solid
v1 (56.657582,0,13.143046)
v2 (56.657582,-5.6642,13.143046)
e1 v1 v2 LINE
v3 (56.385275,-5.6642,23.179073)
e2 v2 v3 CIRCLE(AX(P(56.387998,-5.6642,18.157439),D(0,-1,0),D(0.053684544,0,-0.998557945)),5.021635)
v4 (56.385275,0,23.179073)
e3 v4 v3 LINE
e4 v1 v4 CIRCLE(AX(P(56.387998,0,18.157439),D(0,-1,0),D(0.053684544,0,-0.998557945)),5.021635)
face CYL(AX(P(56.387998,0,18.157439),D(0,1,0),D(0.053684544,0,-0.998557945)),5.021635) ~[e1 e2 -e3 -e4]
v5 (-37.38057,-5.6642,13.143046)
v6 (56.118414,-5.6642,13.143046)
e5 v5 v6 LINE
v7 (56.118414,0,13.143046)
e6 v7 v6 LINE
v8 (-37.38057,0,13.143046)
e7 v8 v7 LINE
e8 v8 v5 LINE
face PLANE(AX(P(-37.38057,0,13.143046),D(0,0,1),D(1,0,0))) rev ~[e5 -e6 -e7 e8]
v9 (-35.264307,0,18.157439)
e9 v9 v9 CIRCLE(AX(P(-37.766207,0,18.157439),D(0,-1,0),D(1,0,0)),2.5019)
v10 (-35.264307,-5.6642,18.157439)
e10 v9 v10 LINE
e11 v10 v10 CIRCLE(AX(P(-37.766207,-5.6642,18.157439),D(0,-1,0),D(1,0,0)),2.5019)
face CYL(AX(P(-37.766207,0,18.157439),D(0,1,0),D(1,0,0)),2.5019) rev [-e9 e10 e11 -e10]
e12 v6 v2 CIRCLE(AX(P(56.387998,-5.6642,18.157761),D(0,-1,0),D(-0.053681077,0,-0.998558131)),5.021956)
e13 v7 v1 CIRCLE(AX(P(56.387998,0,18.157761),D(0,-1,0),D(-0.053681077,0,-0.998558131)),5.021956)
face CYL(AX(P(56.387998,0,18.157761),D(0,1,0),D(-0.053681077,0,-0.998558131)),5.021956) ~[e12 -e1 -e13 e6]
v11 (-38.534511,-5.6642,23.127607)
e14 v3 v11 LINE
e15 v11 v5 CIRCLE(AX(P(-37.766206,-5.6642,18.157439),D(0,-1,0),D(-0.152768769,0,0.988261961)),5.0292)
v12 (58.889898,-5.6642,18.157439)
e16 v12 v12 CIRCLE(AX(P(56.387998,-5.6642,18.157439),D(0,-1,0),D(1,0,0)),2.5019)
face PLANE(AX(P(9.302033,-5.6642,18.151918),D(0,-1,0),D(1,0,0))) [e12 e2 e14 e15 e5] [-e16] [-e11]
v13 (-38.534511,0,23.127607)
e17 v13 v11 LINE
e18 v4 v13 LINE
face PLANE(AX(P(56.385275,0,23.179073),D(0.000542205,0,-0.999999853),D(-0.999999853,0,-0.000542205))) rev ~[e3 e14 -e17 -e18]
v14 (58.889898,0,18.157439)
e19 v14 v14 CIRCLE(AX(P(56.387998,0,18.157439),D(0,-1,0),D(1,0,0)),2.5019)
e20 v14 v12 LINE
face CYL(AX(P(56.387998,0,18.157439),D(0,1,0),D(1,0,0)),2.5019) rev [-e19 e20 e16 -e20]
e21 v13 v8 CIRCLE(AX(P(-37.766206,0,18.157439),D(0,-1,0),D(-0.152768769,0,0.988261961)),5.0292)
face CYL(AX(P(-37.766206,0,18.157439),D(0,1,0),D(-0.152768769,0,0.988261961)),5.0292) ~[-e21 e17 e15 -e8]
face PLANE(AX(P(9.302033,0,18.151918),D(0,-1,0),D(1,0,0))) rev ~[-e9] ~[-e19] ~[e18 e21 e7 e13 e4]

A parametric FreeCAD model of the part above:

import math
import FreeCAD as App
import Part
import Sketcher
from FreeCAD import Vector
Q = App.Units.Quantity

doc = App.newDocument("Part")
body = doc.addObject("PartDesign::Body", "Body")

sketch1 = doc.addObject("Sketcher::SketchObject", "Sketch")
body.addObject(sketch1)
sketch1.AttachmentSupport = (doc.XZ_Plane, [""])
sketch1.MapMode = "FlatFace"
sketch1.addGeometry([
    Part.ArcOfCircle(Part.Circle(Vector(-37.8, 18.2, 0), Vector(0, 0, 1), 5), math.radians(99), math.radians(274)),
    Part.LineSegment(Vector(-37.4, 13.1, 0), Vector(56.1, 13.1, 0)),
    Part.ArcOfCircle(Part.Circle(Vector(56.4, 18.2, 0), Vector(0, 0, 1), 5), math.radians(-93.08), math.radians(-86.92)),
    Part.ArcOfCircle(Part.Circle(Vector(56.4, 18.2, 0), Vector(0, 0, 1), 5), math.radians(-87), math.radians(90)),
    Part.LineSegment(Vector(56.4, 23.2, 0), Vector(-38.5, 23.1, 0)),
    Part.Circle(Vector(-37.8, 18.2, 0), Vector(0, 0, 1), 2.5),
    Part.Circle(Vector(56.4, 18.2, 0), Vector(0, 0, 1), 2.5),
], False)
sketch1.addConstraint([
    Sketcher.Constraint("Coincident", 0, 2, 1, 1),
    Sketcher.Constraint("Coincident", 1, 2, 2, 1),
    Sketcher.Constraint("Coincident", 2, 2, 3, 1),
    Sketcher.Constraint("Tangent", 3, 2, 4, 1),
    Sketcher.Constraint("Coincident", 4, 2, 0, 1),
    Sketcher.Constraint("Horizontal", 1),
    Sketcher.Constraint("Coincident", 5, 3, 0, 3),
    Sketcher.Constraint("Coincident", 6, 3, 3, 3),
    Sketcher.Constraint("Equal", 5, 6),
    Sketcher.Constraint("Horizontal", 0, 3, 3, 3),
    Sketcher.Constraint("Horizontal", 1, 2, 2, 2),
    Sketcher.Constraint("Vertical", 2, 3, 3, 3),
    Sketcher.Constraint("Diameter", 5, Q("0.197 in")),
    Sketcher.Constraint("Radius", 0, Q("0.198 in")),
    Sketcher.Constraint("DistanceX", -1, 1, 2, 3, Q("2.2199999 in")),
    Sketcher.Constraint("Distance", 4, Q("3.737 in")),
    Sketcher.Constraint("Radius", 2, 5.021956),
    Sketcher.Constraint("Radius", 3, 5.021635),
    Sketcher.Constraint("DistanceX", 1, 1, 1, 2, 93.498984),
    Sketcher.Constraint("DistanceY", -1, 1, 0, 3, 18.157439),
    Sketcher.Constraint("DistanceX", 0, 2, -1, 1, 37.38057),
])
pad1 = doc.addObject("PartDesign::Pad", "Pad")
body.addObject(pad1)
pad1.Profile = sketch1
pad1.Length = Q("0.223 in")

doc.recompute()
